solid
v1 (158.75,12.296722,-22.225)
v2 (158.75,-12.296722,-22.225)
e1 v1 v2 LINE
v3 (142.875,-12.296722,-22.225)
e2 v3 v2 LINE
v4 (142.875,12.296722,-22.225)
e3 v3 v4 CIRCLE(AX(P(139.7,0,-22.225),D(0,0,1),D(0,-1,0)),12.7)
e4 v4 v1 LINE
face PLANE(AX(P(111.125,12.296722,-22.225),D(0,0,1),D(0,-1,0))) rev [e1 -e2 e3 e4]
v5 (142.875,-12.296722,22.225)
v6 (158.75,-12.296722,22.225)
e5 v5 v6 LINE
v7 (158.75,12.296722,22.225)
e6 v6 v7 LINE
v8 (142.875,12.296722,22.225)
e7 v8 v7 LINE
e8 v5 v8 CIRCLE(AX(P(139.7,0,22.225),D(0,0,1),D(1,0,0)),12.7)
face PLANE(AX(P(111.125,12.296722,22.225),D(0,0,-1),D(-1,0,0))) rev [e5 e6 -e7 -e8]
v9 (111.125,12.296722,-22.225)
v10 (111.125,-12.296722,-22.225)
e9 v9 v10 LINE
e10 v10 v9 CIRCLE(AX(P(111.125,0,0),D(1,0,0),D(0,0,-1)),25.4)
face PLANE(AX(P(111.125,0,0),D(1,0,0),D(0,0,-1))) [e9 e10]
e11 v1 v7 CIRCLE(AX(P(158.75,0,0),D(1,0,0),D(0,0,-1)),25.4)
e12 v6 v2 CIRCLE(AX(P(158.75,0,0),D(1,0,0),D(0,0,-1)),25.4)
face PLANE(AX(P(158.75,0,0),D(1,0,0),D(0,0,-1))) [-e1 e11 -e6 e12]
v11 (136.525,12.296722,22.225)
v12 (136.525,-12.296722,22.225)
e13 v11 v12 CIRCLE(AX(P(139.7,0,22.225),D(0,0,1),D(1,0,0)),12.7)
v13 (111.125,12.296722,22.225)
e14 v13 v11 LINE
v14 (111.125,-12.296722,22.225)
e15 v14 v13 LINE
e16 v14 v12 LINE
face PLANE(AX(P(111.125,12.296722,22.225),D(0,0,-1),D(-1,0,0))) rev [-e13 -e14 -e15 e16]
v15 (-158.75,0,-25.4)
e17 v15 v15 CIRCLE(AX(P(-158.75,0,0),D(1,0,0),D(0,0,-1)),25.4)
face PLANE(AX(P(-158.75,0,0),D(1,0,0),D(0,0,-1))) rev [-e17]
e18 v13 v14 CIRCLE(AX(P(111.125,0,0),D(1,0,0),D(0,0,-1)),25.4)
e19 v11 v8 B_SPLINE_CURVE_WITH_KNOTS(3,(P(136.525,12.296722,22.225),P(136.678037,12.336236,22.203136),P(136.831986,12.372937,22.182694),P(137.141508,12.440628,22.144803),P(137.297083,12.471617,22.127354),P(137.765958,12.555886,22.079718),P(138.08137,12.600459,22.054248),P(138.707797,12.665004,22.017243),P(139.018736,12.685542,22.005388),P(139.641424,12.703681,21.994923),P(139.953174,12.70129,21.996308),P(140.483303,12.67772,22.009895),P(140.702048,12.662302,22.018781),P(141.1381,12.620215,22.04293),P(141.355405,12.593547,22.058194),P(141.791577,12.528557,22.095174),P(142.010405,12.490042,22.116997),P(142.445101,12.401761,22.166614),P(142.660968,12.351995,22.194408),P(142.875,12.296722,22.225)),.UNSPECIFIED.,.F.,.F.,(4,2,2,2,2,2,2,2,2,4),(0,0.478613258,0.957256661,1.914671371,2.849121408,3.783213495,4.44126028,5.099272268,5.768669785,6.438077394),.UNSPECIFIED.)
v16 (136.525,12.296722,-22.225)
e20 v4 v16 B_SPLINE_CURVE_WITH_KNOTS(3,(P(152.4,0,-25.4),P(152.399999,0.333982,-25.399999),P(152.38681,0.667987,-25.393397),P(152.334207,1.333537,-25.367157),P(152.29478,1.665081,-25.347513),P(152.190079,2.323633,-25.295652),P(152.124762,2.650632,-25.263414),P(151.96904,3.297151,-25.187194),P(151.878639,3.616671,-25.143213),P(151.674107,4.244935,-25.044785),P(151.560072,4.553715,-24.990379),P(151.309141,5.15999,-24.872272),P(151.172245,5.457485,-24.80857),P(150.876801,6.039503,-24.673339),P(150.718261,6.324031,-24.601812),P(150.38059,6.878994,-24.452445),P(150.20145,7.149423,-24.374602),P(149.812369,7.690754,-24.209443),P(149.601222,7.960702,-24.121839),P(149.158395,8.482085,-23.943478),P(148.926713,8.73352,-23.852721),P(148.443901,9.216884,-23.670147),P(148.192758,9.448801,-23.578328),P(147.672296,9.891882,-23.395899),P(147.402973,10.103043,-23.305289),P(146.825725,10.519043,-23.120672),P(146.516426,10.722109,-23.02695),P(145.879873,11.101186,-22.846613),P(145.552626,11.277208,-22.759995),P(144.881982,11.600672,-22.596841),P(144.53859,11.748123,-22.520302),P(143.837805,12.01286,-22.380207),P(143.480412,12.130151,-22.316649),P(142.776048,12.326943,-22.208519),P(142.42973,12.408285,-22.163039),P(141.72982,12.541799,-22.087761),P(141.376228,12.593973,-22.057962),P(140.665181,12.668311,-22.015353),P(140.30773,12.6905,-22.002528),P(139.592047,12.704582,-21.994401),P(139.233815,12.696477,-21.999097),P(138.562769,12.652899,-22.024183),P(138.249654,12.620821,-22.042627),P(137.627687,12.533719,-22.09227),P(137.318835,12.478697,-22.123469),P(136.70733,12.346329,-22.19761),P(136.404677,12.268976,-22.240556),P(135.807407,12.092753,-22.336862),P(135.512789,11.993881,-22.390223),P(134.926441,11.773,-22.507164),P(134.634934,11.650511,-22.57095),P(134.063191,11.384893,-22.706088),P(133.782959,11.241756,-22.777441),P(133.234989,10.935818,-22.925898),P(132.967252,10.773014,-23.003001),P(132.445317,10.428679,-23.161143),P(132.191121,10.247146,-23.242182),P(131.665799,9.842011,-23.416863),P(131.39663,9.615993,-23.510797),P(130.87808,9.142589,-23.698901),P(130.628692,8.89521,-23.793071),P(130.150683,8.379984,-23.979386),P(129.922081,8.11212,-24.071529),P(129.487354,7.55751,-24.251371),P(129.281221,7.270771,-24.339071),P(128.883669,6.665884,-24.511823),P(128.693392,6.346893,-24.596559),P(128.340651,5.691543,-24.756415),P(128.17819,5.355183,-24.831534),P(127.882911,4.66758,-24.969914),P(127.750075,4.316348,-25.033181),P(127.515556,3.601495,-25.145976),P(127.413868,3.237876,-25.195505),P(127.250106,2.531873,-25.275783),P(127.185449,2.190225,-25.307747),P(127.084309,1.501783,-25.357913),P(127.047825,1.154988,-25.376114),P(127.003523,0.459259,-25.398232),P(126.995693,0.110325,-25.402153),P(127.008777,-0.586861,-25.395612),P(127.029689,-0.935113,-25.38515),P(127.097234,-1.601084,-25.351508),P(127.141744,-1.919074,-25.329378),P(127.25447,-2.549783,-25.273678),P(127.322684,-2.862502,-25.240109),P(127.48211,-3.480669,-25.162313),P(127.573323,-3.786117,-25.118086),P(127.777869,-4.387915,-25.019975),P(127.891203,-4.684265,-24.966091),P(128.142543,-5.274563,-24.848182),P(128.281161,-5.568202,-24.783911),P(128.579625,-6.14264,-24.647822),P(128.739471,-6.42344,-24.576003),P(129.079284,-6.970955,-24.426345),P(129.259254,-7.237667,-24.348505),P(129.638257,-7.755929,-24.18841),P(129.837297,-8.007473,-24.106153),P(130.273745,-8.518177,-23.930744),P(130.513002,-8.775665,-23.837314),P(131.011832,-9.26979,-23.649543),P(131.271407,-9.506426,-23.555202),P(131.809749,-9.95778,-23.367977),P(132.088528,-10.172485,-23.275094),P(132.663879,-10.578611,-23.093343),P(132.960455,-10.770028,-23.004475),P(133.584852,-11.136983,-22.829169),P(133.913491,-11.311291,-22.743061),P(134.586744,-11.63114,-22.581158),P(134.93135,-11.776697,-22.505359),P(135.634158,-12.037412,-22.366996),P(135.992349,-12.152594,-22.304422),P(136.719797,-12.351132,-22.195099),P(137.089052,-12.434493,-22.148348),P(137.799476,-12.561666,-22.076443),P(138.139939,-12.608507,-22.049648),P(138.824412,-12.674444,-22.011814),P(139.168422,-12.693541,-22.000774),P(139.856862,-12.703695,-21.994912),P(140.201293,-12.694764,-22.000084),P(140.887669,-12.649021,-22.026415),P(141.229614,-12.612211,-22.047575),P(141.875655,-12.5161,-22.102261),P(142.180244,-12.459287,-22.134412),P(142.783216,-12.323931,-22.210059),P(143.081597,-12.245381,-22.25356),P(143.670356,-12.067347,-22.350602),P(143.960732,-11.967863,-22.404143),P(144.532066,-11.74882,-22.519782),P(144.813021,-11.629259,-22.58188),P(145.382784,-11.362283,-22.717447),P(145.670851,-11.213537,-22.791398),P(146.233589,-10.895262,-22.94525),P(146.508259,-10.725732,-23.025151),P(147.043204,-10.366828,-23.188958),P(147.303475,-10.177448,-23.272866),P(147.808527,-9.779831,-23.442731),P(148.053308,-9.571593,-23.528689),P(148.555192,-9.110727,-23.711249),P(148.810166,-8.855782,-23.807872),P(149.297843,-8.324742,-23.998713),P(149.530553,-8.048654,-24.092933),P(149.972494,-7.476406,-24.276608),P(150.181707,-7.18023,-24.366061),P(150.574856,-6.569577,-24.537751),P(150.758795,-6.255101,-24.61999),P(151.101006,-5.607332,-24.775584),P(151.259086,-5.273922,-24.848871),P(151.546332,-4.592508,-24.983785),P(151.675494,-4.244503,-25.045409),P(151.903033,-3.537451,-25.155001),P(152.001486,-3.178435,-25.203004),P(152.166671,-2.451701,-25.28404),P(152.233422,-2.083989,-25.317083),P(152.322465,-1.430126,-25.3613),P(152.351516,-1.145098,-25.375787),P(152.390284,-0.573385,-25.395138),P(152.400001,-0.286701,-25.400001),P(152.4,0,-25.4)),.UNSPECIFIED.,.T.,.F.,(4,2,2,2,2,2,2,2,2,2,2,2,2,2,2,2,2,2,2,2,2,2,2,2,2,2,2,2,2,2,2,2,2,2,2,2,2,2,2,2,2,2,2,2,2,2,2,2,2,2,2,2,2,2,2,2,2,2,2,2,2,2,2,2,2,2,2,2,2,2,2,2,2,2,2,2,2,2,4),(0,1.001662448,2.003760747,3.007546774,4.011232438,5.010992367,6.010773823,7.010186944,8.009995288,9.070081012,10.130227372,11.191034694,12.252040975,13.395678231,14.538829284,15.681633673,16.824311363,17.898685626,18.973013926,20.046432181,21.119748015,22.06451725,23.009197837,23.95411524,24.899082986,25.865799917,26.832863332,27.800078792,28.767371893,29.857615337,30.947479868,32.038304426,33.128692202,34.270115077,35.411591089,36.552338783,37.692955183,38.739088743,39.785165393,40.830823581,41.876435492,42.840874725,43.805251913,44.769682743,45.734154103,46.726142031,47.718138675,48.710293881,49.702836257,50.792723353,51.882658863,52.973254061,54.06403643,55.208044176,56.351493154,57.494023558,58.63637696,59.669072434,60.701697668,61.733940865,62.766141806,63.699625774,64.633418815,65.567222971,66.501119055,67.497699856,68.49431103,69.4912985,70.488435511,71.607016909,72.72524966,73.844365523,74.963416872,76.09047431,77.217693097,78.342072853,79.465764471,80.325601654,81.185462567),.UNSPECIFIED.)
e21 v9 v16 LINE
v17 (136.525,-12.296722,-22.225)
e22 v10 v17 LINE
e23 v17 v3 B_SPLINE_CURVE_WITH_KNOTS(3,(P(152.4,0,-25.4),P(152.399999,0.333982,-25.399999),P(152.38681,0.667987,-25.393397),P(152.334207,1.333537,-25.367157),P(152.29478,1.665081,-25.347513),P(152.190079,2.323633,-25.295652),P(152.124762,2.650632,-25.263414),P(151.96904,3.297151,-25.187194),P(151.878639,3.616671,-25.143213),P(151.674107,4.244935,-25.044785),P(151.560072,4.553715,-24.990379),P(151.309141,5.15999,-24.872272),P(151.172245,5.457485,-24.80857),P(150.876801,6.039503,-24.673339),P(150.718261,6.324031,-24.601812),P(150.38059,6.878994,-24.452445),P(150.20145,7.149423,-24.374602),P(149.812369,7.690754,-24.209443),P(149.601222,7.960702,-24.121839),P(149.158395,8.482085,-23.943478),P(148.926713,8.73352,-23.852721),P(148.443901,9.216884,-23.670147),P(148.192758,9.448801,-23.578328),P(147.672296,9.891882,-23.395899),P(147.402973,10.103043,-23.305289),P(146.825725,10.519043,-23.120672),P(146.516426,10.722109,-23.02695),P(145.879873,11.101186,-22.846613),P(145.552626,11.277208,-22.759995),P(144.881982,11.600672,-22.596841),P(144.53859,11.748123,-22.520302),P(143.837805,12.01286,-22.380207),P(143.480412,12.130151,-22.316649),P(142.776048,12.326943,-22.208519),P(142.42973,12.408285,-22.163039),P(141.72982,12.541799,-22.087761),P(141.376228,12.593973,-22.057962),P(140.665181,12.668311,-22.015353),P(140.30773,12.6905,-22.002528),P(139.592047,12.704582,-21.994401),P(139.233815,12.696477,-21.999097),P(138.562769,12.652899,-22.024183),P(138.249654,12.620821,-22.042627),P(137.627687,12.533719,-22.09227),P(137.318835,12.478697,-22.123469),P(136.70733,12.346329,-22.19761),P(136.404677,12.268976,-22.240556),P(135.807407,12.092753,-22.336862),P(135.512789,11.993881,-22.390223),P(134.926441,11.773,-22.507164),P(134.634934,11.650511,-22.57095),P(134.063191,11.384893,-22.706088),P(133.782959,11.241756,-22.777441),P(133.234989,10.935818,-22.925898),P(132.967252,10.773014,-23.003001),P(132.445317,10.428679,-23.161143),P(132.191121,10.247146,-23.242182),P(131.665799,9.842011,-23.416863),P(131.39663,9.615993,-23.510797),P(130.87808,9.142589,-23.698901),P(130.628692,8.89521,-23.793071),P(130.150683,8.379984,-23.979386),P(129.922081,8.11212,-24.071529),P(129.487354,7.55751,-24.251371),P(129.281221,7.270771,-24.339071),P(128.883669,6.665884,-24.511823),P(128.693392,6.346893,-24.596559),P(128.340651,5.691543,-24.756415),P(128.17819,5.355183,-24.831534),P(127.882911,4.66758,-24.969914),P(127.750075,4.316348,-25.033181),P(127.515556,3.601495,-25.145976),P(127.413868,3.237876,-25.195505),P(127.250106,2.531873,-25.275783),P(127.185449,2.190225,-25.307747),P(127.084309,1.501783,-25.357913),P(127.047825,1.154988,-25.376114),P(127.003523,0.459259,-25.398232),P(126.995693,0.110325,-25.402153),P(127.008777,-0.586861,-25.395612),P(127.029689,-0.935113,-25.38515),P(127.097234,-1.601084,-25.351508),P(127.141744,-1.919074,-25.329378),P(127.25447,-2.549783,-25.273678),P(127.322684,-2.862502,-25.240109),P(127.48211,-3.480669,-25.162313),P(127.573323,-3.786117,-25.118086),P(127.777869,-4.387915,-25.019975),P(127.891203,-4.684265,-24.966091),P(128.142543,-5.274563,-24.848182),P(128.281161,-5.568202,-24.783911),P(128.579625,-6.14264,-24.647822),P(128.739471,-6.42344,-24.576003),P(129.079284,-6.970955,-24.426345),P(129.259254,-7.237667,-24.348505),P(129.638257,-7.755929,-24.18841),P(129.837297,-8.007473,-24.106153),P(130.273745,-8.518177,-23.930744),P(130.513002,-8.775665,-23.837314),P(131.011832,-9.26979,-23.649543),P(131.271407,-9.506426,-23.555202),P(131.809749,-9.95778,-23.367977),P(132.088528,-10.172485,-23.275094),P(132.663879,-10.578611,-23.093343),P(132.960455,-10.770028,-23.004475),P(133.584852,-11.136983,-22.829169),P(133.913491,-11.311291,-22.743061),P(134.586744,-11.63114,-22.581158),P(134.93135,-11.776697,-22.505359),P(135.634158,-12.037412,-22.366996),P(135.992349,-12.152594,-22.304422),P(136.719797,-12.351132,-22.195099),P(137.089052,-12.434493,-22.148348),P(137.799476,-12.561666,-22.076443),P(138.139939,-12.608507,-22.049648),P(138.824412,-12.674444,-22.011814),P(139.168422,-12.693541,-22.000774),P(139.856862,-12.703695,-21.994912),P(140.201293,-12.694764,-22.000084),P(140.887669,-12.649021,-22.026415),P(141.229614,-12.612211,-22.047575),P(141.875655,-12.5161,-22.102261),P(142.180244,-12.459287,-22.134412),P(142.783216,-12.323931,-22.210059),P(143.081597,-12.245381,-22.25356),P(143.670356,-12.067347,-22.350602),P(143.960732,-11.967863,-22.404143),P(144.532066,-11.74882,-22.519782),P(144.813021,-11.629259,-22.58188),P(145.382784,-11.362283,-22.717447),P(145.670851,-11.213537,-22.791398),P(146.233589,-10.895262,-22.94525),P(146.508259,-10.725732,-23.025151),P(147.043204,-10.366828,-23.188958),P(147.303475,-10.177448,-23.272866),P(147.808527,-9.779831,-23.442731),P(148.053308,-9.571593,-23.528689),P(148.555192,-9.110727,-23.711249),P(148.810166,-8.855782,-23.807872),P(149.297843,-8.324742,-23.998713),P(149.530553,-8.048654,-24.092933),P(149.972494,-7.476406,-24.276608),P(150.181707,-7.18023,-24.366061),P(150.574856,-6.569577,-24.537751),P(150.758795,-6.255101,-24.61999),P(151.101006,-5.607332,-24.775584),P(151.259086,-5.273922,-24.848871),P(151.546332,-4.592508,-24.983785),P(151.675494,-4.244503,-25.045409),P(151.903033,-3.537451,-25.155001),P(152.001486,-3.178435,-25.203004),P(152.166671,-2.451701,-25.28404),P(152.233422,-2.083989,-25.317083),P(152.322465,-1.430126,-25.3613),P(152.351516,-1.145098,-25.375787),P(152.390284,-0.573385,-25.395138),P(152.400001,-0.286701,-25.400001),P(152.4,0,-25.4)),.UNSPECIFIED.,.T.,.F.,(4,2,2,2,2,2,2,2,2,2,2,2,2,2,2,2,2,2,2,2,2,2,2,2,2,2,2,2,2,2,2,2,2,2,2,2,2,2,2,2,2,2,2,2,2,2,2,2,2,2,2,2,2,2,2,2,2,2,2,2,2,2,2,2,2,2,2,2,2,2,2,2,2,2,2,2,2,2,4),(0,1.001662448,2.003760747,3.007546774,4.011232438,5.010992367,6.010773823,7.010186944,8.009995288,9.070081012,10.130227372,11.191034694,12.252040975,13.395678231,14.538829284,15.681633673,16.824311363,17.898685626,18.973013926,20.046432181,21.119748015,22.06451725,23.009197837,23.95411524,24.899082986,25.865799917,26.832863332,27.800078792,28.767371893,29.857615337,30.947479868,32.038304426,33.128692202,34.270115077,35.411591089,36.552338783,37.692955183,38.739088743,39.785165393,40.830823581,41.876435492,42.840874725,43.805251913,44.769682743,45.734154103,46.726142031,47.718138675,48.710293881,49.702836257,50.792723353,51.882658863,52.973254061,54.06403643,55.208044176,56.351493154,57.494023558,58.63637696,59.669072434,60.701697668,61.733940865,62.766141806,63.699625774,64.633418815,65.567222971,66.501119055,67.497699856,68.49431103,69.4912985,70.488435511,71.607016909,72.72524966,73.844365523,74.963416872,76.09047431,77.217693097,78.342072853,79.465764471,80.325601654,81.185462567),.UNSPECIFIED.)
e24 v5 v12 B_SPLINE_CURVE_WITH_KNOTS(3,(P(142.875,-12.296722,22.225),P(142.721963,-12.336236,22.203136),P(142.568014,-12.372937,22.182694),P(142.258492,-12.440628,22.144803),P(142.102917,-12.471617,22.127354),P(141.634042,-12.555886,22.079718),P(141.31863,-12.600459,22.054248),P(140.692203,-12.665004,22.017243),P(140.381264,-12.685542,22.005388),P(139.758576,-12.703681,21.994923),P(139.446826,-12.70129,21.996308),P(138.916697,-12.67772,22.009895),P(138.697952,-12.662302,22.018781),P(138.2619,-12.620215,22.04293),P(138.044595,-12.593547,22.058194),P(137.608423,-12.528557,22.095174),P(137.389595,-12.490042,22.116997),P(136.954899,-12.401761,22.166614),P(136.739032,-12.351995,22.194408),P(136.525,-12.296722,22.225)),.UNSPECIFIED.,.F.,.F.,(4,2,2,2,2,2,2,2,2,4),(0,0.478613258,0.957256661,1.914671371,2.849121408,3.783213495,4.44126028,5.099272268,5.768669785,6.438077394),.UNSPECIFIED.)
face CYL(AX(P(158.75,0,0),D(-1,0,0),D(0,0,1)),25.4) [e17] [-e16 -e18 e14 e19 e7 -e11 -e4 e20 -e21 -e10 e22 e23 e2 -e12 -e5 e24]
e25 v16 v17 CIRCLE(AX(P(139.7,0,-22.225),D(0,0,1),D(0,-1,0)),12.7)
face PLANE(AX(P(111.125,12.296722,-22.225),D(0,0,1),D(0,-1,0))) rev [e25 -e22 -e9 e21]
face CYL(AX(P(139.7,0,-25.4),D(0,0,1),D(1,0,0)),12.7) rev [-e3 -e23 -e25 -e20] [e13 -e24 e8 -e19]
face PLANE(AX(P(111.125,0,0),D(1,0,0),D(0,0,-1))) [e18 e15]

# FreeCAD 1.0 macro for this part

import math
import FreeCAD as App
import Part
import Sketcher

V = App.Vector
Q = App.Units.Quantity

doc = App.newDocument("Part")
params = doc.addObject("Spreadsheet::Sheet", "Params")
for row, (alias, value) in enumerate([
    ("sketch1_diameter", "2 in"),
    ("pad1_length", "12.5 in"),
    ("sketch2_radius", "1 in"),
    ("pocket1_length", "1.875 in"),
    ("sketch3_diameter", "1 in"),
], start=1):
    params.set(f"A{row}", alias)
    params.set(f"B{row}", "=" + value)
    params.setAlias(f"B{row}", alias)

body = doc.addObject("PartDesign::Body", "Body")

sketch1 = body.newObject("Sketcher::SketchObject", "Sketch")
sketch1.AttachmentSupport = (doc.getObject("YZ_Plane"), [""])
sketch1.MapMode = "FlatFace"
sketch1.addGeometry(Part.Circle(V(0, 0, 0), V(0, 0, 1), 25), False)
sketch1.addConstraint([
    Sketcher.Constraint("Coincident", 0, 3, -1, 1),
    Sketcher.Constraint("Diameter", 0, Q("2 in")),
])
sketch1.setExpression("Constraints[1]", "Params.sketch1_diameter")
pad1 = body.newObject("PartDesign::Pad", "Pad")
pad1.Profile = sketch1
pad1.setExpression("Length", "Params.pad1_length")
pad1.Midplane = True

sketch2 = body.newObject("Sketcher::SketchObject", "Sketch001")
sketch2.AttachmentSupport = (doc.getObject("YZ_Plane"), [""])
sketch2.MapMode = "FlatFace"
sketch2.AttachmentOffset = App.Placement(V(0, 0, 6.25 * 25.4), App.Rotation())
sketch2.addGeometry([
    Part.LineSegment(V(-12, 22, 0), V(12, 22, 0)),
    Part.ArcOfCircle(Part.Circle(V(0, 0, 0), V(0, 0, 1), 25), math.radians(61), math.radians(119)),
    Part.LineSegment(V(12, -22, 0), V(-12, -22, 0)),
    Part.ArcOfCircle(Part.Circle(V(0, 0, 0), V(0, 0, 1), 25), math.radians(-119), math.radians(-61)),
], False)
sketch2.addConstraint([
    Sketcher.Constraint("Coincident", 0, 1, 1, 2),
    Sketcher.Constraint("Coincident", 1, 1, 0, 2),
    Sketcher.Constraint("Coincident", 2, 1, 3, 2),
    Sketcher.Constraint("Coincident", 3, 1, 2, 2),
    Sketcher.Constraint("Horizontal", 0),
    Sketcher.Constraint("Horizontal", 2),
    Sketcher.Constraint("Coincident", 1, 3, -1, 1),
    Sketcher.Constraint("Coincident", 3, 3, -1, 1),
    Sketcher.Constraint("Equal", 1, 3),
    Sketcher.Constraint("Vertical", 1, 1, 2, 1),
    Sketcher.Constraint("Radius", 1, Q("1 in")),
    Sketcher.Constraint("DistanceY", 2, 1, 1, 1, Q("1.75 in")),
])
sketch2.setExpression("Constraints[10]", "Params.sketch2_radius")
pocket1 = body.newObject("PartDesign::Pocket", "Pocket")
pocket1.Profile = sketch2
pocket1.setExpression("Length", "Params.pocket1_length")

sketch3 = body.newObject("Sketcher::SketchObject", "Sketch002")
sketch3.AttachmentSupport = (doc.getObject("XY_Plane"), [""])
sketch3.MapMode = "FlatFace"
sketch3.AttachmentOffset = App.Placement(V(0, 0, 0.875 * 25.4), App.Rotation())
sketch3.addGeometry(Part.Circle(V(140, 0, 0), V(0, 0, 1), 13), False)
sketch3.addConstraint([
    Sketcher.Constraint("PointOnObject", 0, 3, -1),
    Sketcher.Constraint("Diameter", 0, Q("1 in")),
    Sketcher.Constraint("DistanceX", -1, 1, 0, 3, Q("5.5 in")),
])
sketch3.setExpression("Constraints[1]", "Params.sketch3_diameter")
pocket2 = body.newObject("PartDesign::Pocket", "Pocket001")
pocket2.Profile = sketch3
pocket2.Type = "ThroughAll"

doc.recompute()
